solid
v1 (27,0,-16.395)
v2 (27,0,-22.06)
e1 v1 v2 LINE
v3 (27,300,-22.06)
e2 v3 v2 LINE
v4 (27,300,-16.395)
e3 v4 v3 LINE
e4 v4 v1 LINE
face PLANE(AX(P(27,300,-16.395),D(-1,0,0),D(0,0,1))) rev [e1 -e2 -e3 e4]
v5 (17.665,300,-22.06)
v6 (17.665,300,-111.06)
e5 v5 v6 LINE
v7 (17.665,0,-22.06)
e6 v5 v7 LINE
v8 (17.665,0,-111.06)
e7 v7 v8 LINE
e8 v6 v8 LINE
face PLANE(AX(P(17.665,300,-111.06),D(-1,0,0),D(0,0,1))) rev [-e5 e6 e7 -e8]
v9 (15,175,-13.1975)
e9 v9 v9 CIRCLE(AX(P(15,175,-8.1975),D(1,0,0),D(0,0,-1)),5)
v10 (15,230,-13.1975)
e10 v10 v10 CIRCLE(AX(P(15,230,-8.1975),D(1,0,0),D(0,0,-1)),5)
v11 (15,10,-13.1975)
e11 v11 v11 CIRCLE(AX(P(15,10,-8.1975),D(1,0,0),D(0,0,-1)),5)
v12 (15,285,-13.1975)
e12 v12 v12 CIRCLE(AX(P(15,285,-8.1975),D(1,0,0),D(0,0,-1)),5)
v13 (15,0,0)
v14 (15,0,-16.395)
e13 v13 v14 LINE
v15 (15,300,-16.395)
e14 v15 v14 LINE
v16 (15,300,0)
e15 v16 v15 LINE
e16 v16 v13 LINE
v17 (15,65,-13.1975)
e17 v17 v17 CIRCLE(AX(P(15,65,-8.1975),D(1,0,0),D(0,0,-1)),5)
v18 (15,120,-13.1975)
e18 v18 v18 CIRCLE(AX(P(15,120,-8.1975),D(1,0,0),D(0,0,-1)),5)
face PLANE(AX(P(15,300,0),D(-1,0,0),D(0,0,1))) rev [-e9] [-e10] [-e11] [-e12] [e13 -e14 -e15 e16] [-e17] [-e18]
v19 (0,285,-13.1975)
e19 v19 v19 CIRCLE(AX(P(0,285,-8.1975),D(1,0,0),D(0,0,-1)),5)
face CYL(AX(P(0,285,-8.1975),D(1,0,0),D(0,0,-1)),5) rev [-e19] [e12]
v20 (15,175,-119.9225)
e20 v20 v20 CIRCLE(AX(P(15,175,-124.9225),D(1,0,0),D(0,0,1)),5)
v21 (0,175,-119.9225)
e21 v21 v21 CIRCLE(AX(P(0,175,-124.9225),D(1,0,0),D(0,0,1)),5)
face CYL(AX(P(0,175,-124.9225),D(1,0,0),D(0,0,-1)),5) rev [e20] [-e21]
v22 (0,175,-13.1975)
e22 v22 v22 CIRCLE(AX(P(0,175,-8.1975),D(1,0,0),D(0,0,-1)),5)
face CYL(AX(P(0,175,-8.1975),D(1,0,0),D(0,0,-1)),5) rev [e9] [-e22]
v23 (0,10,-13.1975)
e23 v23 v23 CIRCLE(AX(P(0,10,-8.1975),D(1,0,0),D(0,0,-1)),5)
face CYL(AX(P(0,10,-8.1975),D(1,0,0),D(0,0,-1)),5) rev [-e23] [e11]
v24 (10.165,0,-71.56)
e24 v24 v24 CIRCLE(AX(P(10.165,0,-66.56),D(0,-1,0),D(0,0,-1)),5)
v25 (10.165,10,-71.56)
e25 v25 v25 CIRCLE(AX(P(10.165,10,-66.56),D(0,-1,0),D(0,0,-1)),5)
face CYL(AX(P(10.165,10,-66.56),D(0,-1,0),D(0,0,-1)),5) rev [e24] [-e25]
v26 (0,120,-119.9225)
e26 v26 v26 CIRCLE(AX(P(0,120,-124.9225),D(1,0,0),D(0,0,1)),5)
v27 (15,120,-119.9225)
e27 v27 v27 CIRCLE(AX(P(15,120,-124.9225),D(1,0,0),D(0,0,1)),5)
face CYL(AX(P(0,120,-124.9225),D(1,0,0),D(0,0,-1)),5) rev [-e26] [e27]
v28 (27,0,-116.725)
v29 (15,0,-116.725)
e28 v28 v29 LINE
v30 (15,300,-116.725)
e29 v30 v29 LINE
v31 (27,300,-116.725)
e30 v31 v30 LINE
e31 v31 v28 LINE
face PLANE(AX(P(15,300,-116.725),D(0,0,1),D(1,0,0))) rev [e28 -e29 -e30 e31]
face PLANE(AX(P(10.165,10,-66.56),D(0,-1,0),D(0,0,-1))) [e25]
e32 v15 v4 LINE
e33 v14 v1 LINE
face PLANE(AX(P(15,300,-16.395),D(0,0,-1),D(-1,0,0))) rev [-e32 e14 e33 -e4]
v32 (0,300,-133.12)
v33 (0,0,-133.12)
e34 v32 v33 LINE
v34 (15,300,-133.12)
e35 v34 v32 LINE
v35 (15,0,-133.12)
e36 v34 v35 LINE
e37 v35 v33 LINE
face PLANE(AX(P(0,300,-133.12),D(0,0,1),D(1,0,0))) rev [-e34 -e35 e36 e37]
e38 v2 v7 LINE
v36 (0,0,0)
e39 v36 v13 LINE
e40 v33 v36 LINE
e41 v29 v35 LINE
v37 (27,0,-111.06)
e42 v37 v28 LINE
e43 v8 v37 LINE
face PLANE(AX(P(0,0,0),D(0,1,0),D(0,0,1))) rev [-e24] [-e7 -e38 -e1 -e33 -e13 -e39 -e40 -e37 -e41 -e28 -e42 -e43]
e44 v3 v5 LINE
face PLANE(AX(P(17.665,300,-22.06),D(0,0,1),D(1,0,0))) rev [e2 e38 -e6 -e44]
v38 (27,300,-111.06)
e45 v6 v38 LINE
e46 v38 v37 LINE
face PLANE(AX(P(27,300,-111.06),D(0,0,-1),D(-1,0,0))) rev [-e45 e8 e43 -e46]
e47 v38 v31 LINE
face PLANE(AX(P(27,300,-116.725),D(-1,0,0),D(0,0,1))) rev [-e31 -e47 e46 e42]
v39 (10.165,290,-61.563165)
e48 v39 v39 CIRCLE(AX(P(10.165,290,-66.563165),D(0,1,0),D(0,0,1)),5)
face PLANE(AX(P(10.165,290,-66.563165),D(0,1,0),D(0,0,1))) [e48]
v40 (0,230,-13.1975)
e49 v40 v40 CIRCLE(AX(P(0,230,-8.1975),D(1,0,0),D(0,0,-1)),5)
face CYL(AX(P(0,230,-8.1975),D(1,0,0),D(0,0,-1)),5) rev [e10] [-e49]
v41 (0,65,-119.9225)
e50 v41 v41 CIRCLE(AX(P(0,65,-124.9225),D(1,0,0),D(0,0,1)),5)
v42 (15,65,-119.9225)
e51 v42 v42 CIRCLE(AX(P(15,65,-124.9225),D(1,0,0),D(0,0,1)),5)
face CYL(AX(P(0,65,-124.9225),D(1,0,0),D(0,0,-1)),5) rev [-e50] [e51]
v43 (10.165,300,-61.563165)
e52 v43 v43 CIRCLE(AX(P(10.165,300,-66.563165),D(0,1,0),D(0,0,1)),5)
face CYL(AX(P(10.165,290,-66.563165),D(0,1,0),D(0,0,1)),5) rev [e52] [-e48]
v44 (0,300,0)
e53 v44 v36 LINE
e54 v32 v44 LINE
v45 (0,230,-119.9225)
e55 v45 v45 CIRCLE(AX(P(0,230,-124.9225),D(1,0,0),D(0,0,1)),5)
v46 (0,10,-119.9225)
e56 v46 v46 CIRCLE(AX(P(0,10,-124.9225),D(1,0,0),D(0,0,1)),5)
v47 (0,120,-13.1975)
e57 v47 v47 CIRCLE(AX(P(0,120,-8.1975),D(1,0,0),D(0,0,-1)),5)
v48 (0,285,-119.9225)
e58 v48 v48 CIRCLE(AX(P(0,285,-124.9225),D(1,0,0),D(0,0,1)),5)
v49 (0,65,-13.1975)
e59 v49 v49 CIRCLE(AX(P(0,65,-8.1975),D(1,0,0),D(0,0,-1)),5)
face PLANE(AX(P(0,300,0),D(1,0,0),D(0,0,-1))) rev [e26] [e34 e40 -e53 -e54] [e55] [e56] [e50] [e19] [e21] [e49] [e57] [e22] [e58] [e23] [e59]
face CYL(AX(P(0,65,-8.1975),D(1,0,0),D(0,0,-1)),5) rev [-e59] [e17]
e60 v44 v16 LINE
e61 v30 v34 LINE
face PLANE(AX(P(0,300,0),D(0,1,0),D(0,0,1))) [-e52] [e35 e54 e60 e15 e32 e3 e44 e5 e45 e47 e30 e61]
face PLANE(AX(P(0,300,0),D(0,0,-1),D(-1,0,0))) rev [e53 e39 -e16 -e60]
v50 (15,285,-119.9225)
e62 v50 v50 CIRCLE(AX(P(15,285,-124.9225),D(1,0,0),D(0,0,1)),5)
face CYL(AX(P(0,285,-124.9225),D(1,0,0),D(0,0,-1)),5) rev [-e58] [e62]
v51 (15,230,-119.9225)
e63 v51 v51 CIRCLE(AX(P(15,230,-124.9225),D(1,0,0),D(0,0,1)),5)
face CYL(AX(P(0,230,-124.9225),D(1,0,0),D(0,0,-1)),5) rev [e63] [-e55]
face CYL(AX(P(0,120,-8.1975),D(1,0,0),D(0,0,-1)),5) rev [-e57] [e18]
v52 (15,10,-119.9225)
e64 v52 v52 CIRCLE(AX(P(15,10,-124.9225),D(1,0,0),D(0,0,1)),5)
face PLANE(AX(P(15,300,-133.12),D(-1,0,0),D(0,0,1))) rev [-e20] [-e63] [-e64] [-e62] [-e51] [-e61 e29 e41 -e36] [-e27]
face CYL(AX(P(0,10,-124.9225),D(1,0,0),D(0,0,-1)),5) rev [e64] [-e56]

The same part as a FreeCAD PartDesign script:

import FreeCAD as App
import Part
import Sketcher

V = App.Vector
Q = App.Units.Quantity


def add_polygon(sketch, points):
    """Adds a closed chain of lines whose ends are joined by coincident constraints."""
    first, n = sketch.GeometryCount, len(points)
    for a, b in zip(points, points[1:] + points[:1]):
        sketch.addGeometry(Part.LineSegment(App.Vector(*a, 0), App.Vector(*b, 0)), False)
    for i in range(n):
        sketch.addConstraint(Sketcher.Constraint("Coincident", first + i, 2, first + (i + 1) % n, 1))

doc = App.newDocument("Part")
params = doc.addObject("Spreadsheet::Sheet", "Params")
for row, (alias, value) in enumerate([
    ("sketch1_width", "15 mm"),
    ("sketch1_width2", "12 mm"),
    ("sketch1_height", "89 mm"),
    ("sketch1_height2", "133.12 mm"),
    ("pad1_length", "300 mm"),
    ("sketch2_diameter", "10 mm"),
    ("sketch3_diameter", "10 mm"),
    ("pocket2_length", "10 mm"),
    ("sketch4_diameter", "10 mm"),
    ("pocket3_length", "10 mm"),
], start=1):
    params.set(f"A{row}", alias)
    params.set(f"B{row}", "=" + value)
    params.setAlias(f"B{row}", alias)

body = doc.addObject("PartDesign::Body", "Body")

# Sketch on XZ plane
sketch1 = body.newObject("Sketcher::SketchObject", "Sketch")
sketch1.AttachmentSupport = (doc.getObject("XZ_Plane"), [""])
sketch1.MapMode = "FlatFace"
add_polygon(sketch1, [(0, -133), (0, 0), (15, 0), (15, -16), (27, -16), (27, -22), (18, -22), (18, -111), (27, -111), (27, -117), (15, -117), (15, -133)])  # lines 0-11
sketch1.addConstraint(Sketcher.Constraint("Vertical", 0))
sketch1.addConstraint(Sketcher.Constraint("Horizontal", 1))
sketch1.addConstraint(Sketcher.Constraint("Vertical", 2))
sketch1.addConstraint(Sketcher.Constraint("Horizontal", 3))
sketch1.addConstraint(Sketcher.Constraint("Vertical", 4))
sketch1.addConstraint(Sketcher.Constraint("Horizontal", 5))
sketch1.addConstraint(Sketcher.Constraint("Vertical", 6))
sketch1.addConstraint(Sketcher.Constraint("Horizontal", 7))
sketch1.addConstraint(Sketcher.Constraint("Vertical", 8))
sketch1.addConstraint(Sketcher.Constraint("Horizontal", 9))
sketch1.addConstraint(Sketcher.Constraint("Vertical", 10))
sketch1.addConstraint(Sketcher.Constraint("Horizontal", 11))
sketch1.addConstraint(Sketcher.Constraint("Coincident", 0, 2, -1, 1))
sketch1.addConstraint(Sketcher.Constraint("Vertical", 4, 2, 7, 2))
sketch1.addConstraint(Sketcher.Constraint("Vertical", 2, 2, 9, 2))
sketch1.addConstraint(Sketcher.Constraint("Equal", 4, 8))
sketch1.addConstraint(Sketcher.Constraint("Equal", 2, 10))
sketch1.addConstraint(Sketcher.Constraint("DistanceX", 1, 1, 1, 2, Q("15 mm")))
sketch1.addConstraint(Sketcher.Constraint("DistanceX", 3, 1, 3, 2, Q("12 mm")))
sketch1.addConstraint(Sketcher.Constraint("DistanceY", 6, 2, 6, 1, Q("89 mm")))
sketch1.addConstraint(Sketcher.Constraint("DistanceY", 0, 1, 0, 2, Q("133.12 mm")))
sketch1.addConstraint(Sketcher.Constraint("DistanceX", 5, 2, 5, 1, Q("9.335 mm")))
sketch1.addConstraint(Sketcher.Constraint("DistanceY", 2, 2, 2, 1, Q("16.395 mm")))
sketch1.setExpression("Constraints[29]", "Params.sketch1_width")
sketch1.setExpression("Constraints[30]", "Params.sketch1_width2")
sketch1.setExpression("Constraints[31]", "Params.sketch1_height")
sketch1.setExpression("Constraints[32]", "Params.sketch1_height2")
pad1 = body.newObject("PartDesign::Pad", "Pad")
pad1.Profile = sketch1
pad1.setExpression("Length", "Params.pad1_length")
pad1.Reversed = True

# Sketch on YZ plane
sketch2 = body.newObject("Sketcher::SketchObject", "Sketch001")
sketch2.AttachmentSupport = (doc.getObject("YZ_Plane"), [""])
sketch2.MapMode = "FlatFace"
sketch2.AttachmentOffset = App.Placement(V(0, 0, 15), App.Rotation())
sketch2.addGeometry(Part.Circle(V(285, -8, 0), V(0, 0, 1), 5), False)
sketch2.addGeometry(Part.Circle(V(230, -8, 0), V(0, 0, 1), 5), False)
sketch2.addGeometry(Part.Circle(V(175, -8, 0), V(0, 0, 1), 5), False)
sketch2.addGeometry(Part.Circle(V(120, -8, 0), V(0, 0, 1), 5), False)
sketch2.addGeometry(Part.Circle(V(65, -8, 0), V(0, 0, 1), 5), False)
sketch2.addGeometry(Part.Circle(V(10, -8, 0), V(0, 0, 1), 5), False)
sketch2.addGeometry(Part.Circle(V(10, -125, 0), V(0, 0, 1), 5), False)
sketch2.addGeometry(Part.Circle(V(65, -125, 0), V(0, 0, 1), 5), False)
sketch2.addGeometry(Part.Circle(V(120, -125, 0), V(0, 0, 1), 5), False)
sketch2.addGeometry(Part.Circle(V(175, -125, 0), V(0, 0, 1), 5), False)
sketch2.addGeometry(Part.Circle(V(230, -125, 0), V(0, 0, 1), 5), False)
sketch2.addGeometry(Part.Circle(V(285, -125, 0), V(0, 0, 1), 5), False)
sketch2.addConstraint(Sketcher.Constraint("Equal", 0, 1))
sketch2.addConstraint(Sketcher.Constraint("Equal", 1, 2))
sketch2.addConstraint(Sketcher.Constraint("Equal", 2, 3))
sketch2.addConstraint(Sketcher.Constraint("Equal", 3, 4))
sketch2.addConstraint(Sketcher.Constraint("Equal", 4, 5))
sketch2.addConstraint(Sketcher.Constraint("Equal", 5, 6))
sketch2.addConstraint(Sketcher.Constraint("Equal", 6, 7))
sketch2.addConstraint(Sketcher.Constraint("Equal", 7, 8))
sketch2.addConstraint(Sketcher.Constraint("Equal", 8, 9))
sketch2.addConstraint(Sketcher.Constraint("Equal", 9, 10))
sketch2.addConstraint(Sketcher.Constraint("Equal", 10, 11))
sketch2.addConstraint(Sketcher.Constraint("Horizontal", 0, 3, 1, 3))
sketch2.addConstraint(Sketcher.Constraint("Horizontal", 1, 3, 2, 3))
sketch2.addConstraint(Sketcher.Constraint("Horizontal", 2, 3, 3, 3))
sketch2.addConstraint(Sketcher.Constraint("Horizontal", 3, 3, 4, 3))
sketch2.addConstraint(Sketcher.Constraint("Horizontal", 4, 3, 5, 3))
sketch2.addConstraint(Sketcher.Constraint("Horizontal", 6, 3, 7, 3))
sketch2.addConstraint(Sketcher.Constraint("Horizontal", 7, 3, 8, 3))
sketch2.addConstraint(Sketcher.Constraint("Horizontal", 8, 3, 9, 3))
sketch2.addConstraint(Sketcher.Constraint("Horizontal", 9, 3, 10, 3))
sketch2.addConstraint(Sketcher.Constraint("Horizontal", 10, 3, 11, 3))
sketch2.addConstraint(Sketcher.Constraint("Vertical", 5, 3, 6, 3))
sketch2.addConstraint(Sketcher.Constraint("Vertical", 4, 3, 7, 3))
sketch2.addConstraint(Sketcher.Constraint("Vertical", 3, 3, 8, 3))
sketch2.addConstraint(Sketcher.Constraint("Vertical", 2, 3, 9, 3))
sketch2.addConstraint(Sketcher.Constraint("Vertical", 1, 3, 10, 3))
sketch2.addConstraint(Sketcher.Constraint("Vertical", 0, 3, 11, 3))
sketch2.addConstraint(Sketcher.Constraint("Diameter", 0, Q("10 mm")))
sketch2.addConstraint(Sketcher.Constraint("DistanceX", -1, 1, 0, 3, Q("285 mm")))
sketch2.addConstraint(Sketcher.Constraint("DistanceX", -1, 1, 1, 3, Q("230 mm")))
sketch2.addConstraint(Sketcher.Constraint("DistanceX", -1, 1, 2, 3, Q("175 mm")))
sketch2.addConstraint(Sketcher.Constraint("DistanceX", -1, 1, 3, 3, Q("120 mm")))
sketch2.addConstraint(Sketcher.Constraint("DistanceX", -1, 1, 4, 3, Q("65 mm")))
sketch2.addConstraint(Sketcher.Constraint("DistanceX", -1, 1, 5, 3, Q("10 mm")))
sketch2.addConstraint(Sketcher.Constraint("DistanceY", 6, 3, 5, 3, Q("116.725 mm")))
sketch2.addConstraint(Sketcher.Constraint("DistanceY", 0, 3, -1, 1, Q("8.1975 mm")))
sketch2.setExpression("Constraints[27]", "Params.sketch2_diameter")
pocket1 = body.newObject("PartDesign::Pocket", "Pocket")
pocket1.Profile = sketch2
pocket1.Type = "ThroughAll"

# Sketch on XZ plane
sketch3 = body.newObject("Sketcher::SketchObject", "Sketch002")
sketch3.AttachmentSupport = (doc.getObject("XZ_Plane"), [""])
sketch3.MapMode = "FlatFace"
sketch3.AttachmentOffset = App.Placement(V(0, 0, -300), App.Rotation())
sketch3.addGeometry(Part.Circle(V(10, -67, 0), V(0, 0, 1), 5), False)
sketch3.addConstraint(Sketcher.Constraint("Diameter", 0, Q("10 mm")))
sketch3.addConstraint(Sketcher.Constraint("DistanceX", -1, 1, 0, 3, Q("10.165 mm")))
sketch3.addConstraint(Sketcher.Constraint("DistanceY", 0, 3, -1, 1, Q("66.563165 mm")))
sketch3.setExpression("Constraints[0]", "Params.sketch3_diameter")
pocket2 = body.newObject("PartDesign::Pocket", "Pocket001")
pocket2.Profile = sketch3
pocket2.setExpression("Length", "Params.pocket2_length")
pocket2.Reversed = True

# Sketch on XZ plane
sketch4 = body.newObject("Sketcher::SketchObject", "Sketch003")
sketch4.AttachmentSupport = (doc.getObject("XZ_Plane"), [""])
sketch4.MapMode = "FlatFace"
sketch4.addGeometry(Part.Circle(V(10, -67, 0), V(0, 0, 1), 5), False)
sketch4.addConstraint(Sketcher.Constraint("Diameter", 0, Q("10 mm")))
sketch4.addConstraint(Sketcher.Constraint("DistanceY", 0, 3, -1, 1, Q("66.56 mm")))
sketch4.addConstraint(Sketcher.Constraint("DistanceX", -1, 1, 0, 3, Q("10.165 mm")))
sketch4.setExpression("Constraints[0]", "Params.sketch4_diameter")
pocket3 = body.newObject("PartDesign::Pocket", "Pocket002")
pocket3.Profile = sketch4
pocket3.setExpression("Length", "Params.pocket3_length")

doc.recompute()
